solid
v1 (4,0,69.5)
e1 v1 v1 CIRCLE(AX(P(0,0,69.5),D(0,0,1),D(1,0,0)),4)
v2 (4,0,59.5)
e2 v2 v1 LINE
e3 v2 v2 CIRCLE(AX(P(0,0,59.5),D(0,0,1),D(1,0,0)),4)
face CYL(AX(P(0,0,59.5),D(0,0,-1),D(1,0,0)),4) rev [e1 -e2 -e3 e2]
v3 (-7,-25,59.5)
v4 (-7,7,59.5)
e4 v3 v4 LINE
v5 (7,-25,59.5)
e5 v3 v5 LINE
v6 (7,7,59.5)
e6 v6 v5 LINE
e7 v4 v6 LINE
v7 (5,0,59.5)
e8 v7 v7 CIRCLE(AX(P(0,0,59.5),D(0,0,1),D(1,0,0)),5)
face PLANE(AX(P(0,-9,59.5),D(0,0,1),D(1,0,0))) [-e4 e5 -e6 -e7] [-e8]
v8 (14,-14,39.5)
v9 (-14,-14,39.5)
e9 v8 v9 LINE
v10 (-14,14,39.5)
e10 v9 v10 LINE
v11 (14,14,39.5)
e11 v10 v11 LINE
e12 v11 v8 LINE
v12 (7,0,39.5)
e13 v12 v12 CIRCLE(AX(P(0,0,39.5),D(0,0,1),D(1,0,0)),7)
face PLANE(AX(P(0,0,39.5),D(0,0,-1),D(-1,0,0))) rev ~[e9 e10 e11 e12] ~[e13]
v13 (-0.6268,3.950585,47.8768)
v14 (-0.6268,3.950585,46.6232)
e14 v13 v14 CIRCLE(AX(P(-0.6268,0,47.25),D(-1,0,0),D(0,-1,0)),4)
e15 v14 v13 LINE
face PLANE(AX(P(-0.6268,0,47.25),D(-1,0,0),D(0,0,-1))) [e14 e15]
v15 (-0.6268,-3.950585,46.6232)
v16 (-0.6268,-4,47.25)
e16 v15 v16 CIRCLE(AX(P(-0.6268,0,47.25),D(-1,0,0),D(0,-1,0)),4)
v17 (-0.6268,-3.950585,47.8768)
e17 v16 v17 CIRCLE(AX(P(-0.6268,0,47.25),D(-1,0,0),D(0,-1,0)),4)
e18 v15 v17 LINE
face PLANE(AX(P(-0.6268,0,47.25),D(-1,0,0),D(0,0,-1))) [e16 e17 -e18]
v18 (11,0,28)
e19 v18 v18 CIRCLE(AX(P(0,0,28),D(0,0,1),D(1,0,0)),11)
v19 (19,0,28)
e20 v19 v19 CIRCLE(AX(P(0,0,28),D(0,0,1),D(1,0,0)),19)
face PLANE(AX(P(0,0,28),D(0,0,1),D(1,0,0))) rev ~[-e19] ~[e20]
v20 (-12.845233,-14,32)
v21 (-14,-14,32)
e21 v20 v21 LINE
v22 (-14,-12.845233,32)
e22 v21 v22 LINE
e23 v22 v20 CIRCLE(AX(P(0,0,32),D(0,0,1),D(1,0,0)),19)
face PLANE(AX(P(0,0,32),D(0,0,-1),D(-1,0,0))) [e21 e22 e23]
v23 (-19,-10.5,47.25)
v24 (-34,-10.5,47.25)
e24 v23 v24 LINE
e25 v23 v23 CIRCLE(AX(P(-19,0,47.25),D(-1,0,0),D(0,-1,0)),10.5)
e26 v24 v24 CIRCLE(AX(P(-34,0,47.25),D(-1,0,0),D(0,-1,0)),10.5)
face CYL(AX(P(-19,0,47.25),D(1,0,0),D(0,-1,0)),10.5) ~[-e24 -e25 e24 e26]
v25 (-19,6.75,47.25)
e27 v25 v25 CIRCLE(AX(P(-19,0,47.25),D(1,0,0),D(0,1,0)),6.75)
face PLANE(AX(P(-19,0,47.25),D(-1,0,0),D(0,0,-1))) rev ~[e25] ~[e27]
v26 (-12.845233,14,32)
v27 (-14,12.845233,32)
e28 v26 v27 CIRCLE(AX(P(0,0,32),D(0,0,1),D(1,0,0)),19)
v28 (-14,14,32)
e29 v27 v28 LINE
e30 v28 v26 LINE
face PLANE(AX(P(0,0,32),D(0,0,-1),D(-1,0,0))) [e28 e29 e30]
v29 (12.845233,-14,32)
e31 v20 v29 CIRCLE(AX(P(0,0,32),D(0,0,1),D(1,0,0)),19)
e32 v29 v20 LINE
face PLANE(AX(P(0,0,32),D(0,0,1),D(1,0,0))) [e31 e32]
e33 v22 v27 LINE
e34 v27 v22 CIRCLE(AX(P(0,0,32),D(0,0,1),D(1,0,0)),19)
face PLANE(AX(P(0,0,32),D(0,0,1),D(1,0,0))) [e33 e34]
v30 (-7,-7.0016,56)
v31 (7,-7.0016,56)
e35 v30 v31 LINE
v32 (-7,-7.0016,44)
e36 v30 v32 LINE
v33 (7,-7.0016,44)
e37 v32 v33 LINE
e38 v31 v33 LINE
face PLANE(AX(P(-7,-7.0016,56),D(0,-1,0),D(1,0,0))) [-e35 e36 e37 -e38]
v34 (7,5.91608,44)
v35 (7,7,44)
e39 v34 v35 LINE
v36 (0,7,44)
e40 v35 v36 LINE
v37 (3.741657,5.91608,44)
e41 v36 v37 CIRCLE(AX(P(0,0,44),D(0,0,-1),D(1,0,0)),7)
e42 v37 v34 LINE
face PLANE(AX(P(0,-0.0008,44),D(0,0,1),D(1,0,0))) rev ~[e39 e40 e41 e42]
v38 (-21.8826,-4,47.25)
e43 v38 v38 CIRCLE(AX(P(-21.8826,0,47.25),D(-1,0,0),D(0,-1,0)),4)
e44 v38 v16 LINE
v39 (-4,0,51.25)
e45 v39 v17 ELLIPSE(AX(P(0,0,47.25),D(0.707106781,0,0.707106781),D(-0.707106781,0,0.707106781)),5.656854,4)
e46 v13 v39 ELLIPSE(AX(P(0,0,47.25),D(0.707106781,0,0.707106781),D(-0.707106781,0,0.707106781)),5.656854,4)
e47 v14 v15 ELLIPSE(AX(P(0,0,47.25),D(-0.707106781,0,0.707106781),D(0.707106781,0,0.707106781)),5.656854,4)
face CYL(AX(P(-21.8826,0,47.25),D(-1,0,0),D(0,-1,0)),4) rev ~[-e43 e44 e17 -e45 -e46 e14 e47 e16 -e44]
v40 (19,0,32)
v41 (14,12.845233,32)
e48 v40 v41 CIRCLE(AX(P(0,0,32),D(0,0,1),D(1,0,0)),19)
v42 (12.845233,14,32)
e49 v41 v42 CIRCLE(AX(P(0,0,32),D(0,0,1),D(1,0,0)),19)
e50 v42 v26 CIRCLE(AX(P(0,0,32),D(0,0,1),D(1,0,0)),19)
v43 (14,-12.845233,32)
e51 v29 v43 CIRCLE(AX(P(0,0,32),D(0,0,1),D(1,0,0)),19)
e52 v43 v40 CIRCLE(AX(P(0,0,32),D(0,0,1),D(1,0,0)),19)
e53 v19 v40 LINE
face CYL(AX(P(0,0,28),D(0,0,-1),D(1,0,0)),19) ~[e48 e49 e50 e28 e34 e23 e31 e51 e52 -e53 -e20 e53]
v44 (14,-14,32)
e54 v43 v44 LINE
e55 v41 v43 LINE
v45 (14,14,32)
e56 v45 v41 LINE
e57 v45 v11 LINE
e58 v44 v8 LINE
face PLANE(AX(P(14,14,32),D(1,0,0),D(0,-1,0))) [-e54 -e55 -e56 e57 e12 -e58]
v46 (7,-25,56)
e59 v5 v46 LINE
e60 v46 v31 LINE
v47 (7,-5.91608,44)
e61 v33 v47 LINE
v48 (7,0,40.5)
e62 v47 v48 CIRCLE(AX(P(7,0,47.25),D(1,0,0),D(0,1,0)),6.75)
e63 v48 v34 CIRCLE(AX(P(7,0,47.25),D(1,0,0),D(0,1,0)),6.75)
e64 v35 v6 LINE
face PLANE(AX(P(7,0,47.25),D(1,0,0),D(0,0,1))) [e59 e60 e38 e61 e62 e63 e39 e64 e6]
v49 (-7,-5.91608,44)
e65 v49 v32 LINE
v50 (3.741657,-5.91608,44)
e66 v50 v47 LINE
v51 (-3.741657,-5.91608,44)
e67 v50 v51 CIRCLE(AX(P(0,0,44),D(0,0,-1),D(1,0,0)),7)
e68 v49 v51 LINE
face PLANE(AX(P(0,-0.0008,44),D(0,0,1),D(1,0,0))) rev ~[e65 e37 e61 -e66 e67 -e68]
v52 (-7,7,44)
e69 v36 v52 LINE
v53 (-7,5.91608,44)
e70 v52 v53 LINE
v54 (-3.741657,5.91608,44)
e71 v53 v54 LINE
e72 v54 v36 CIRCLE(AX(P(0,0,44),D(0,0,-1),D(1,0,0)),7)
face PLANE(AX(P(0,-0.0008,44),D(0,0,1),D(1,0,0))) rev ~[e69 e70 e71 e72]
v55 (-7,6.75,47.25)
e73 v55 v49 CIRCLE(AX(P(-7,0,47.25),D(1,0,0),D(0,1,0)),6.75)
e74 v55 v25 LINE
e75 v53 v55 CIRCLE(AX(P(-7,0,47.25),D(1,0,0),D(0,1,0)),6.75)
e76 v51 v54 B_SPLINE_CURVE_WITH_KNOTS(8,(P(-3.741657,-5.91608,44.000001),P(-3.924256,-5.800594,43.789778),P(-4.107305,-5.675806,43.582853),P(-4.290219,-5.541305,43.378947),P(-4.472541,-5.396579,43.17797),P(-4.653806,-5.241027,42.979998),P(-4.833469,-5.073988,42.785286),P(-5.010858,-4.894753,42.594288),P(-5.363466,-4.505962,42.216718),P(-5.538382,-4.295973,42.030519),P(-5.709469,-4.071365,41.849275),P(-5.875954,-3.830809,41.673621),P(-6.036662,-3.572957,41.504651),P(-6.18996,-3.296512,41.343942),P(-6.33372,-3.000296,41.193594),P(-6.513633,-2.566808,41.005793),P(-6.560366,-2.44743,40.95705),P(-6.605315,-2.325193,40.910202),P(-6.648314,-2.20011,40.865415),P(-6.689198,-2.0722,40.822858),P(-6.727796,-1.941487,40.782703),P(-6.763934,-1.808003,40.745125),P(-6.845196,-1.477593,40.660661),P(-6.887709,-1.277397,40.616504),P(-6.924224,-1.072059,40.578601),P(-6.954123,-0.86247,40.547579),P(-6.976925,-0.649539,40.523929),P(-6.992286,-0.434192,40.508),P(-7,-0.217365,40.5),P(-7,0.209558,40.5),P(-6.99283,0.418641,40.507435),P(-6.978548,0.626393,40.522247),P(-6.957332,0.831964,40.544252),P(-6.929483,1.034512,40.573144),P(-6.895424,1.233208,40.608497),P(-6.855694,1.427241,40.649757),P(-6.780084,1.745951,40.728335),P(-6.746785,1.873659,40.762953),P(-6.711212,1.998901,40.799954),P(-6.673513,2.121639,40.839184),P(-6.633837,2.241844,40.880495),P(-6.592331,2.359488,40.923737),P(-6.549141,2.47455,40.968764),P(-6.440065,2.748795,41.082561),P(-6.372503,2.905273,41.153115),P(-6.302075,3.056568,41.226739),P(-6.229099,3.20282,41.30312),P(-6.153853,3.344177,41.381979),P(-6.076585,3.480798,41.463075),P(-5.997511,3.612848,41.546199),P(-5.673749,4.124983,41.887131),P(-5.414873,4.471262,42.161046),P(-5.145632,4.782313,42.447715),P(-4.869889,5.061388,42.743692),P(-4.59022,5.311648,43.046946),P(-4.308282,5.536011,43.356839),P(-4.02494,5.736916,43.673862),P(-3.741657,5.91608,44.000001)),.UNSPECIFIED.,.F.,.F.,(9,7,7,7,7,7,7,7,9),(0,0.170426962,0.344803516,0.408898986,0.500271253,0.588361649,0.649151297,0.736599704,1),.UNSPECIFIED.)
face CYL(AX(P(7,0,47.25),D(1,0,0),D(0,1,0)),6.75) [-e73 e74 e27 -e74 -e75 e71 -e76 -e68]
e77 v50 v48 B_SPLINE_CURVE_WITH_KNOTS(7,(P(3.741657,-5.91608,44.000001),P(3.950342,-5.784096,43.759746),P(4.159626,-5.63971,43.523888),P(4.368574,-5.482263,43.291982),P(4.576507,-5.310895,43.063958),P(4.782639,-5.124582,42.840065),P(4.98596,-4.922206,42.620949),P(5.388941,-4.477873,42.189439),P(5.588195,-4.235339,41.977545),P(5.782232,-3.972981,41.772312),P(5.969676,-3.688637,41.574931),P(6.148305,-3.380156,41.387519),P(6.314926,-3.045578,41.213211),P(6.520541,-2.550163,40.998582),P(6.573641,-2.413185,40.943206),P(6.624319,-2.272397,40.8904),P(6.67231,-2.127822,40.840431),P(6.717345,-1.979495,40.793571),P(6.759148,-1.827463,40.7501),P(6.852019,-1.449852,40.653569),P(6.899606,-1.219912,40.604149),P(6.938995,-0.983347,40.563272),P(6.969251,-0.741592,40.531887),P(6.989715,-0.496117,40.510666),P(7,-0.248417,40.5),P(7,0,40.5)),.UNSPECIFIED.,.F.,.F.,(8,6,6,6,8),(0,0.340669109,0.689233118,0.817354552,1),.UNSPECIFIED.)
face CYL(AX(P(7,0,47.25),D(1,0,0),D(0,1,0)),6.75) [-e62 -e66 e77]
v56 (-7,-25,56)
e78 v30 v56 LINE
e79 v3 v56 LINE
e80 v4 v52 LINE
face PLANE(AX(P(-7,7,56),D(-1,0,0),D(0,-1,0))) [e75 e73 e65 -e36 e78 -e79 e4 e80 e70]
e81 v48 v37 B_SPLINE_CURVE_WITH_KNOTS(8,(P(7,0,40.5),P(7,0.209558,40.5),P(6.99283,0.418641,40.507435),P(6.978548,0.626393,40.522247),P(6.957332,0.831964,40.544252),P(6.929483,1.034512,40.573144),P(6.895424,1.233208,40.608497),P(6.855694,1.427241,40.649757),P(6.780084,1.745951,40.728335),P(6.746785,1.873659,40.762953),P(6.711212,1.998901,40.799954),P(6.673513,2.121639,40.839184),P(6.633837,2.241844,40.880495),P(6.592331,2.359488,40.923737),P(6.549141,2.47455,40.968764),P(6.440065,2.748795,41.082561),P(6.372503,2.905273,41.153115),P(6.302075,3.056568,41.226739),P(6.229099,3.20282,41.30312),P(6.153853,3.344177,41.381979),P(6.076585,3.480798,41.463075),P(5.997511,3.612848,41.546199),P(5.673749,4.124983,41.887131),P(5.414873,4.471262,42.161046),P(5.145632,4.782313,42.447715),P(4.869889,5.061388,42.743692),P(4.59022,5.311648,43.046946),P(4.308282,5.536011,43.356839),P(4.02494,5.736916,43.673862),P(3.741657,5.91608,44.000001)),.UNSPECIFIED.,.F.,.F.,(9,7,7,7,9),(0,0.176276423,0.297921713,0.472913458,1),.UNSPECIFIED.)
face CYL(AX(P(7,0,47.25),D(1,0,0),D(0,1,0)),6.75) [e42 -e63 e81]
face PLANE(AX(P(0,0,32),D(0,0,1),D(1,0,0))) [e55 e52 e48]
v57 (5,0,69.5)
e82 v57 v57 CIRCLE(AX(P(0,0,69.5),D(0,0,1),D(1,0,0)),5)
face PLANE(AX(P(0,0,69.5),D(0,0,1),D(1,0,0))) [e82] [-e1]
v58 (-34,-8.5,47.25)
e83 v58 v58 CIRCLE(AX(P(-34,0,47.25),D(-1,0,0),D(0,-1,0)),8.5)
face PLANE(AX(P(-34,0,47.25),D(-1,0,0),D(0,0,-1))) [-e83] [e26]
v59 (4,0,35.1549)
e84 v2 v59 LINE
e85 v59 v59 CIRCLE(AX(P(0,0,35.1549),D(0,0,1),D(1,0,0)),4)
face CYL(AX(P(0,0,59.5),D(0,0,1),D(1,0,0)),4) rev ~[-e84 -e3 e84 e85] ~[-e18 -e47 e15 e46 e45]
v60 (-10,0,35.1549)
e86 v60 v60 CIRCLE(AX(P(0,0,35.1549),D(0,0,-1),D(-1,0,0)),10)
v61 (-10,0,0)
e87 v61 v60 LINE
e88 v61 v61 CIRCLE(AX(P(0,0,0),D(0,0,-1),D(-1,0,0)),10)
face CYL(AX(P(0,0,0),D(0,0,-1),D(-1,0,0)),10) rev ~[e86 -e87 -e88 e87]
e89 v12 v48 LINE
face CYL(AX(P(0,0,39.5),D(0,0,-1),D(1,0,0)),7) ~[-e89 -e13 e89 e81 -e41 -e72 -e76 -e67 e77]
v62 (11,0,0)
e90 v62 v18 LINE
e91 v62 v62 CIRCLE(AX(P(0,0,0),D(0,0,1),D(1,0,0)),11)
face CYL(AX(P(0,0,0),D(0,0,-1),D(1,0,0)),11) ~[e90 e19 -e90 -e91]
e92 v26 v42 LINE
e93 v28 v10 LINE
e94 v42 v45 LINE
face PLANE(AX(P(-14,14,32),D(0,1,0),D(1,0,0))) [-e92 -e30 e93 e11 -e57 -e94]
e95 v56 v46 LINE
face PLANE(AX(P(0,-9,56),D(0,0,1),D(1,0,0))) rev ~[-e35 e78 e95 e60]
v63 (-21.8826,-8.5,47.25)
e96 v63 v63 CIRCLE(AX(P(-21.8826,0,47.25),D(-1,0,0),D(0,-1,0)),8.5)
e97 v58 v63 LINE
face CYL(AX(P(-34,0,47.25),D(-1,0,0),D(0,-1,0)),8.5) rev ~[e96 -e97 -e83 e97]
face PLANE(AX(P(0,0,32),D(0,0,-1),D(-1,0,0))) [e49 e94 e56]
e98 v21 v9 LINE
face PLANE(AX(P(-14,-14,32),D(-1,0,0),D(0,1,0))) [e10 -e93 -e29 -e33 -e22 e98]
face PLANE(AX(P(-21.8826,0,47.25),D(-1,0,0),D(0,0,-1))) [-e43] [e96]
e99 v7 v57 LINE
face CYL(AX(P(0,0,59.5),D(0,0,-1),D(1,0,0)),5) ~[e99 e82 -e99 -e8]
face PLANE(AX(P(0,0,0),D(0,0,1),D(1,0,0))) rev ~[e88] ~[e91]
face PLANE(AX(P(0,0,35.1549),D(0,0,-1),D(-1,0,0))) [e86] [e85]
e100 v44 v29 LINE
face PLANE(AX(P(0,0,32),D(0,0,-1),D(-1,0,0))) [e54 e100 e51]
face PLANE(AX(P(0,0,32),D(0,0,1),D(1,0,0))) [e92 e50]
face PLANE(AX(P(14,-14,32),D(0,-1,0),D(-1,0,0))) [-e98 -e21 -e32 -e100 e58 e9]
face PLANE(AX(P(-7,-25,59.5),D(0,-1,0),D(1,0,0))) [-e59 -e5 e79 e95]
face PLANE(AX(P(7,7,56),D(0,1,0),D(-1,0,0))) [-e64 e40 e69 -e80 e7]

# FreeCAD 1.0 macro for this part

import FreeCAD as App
import Part
import Sketcher


def add_polygon(sketch, points):
    """Adds a closed chain of lines whose ends are joined by coincident constraints."""
    first, n = sketch.GeometryCount, len(points)
    for a, b in zip(points, points[1:] + points[:1]):
        sketch.addGeometry(Part.LineSegment(App.Vector(*a, 0), App.Vector(*b, 0)), False)
    for i in range(n):
        sketch.addConstraint(Sketcher.Constraint("Coincident", first + i, 2, first + (i + 1) % n, 1))

doc = App.newDocument("Part")
body = doc.addObject("PartDesign::Body", "Body")

sketch1 = body.newObject("Sketcher::SketchObject", "Sketch")
sketch1.AttachmentSupport = (doc.getObject("XY_Plane"), [""])
sketch1.MapMode = "FlatFace"
sketch1.addGeometry(Part.Circle(App.Vector(0, 0, 0), App.Vector(0, 0, 1), 11), False)
sketch1.addConstraint([
    Sketcher.Constraint("Coincident", 0, 3, -1, 1),
    Sketcher.Constraint("Diameter", 0, 22.0),
])
pad1 = body.newObject("PartDesign::Pad", "Pad")
pad1.Profile = sketch1
pad1.Length = 28

sketch2 = body.newObject("Sketcher::SketchObject", "Sketch001")
sketch2.AttachmentSupport = (doc.getObject("XY_Plane"), [""])
sketch2.MapMode = "FlatFace"
sketch2.AttachmentOffset = App.Placement(App.Vector(0, 0, 28), App.Rotation())
sketch2.addGeometry(Part.Circle(App.Vector(0, 0, 0), App.Vector(0, 0, 1), 19), False)
sketch2.addConstraint([
    Sketcher.Constraint("Coincident", 0, 3, -1, 1),
    Sketcher.Constraint("Diameter", 0, 38.0),
])
pad2 = body.newObject("PartDesign::Pad", "Pad001")
pad2.Profile = sketch2
pad2.Length = 4

sketch3 = body.newObject("Sketcher::SketchObject", "Sketch002")
sketch3.AttachmentSupport = (doc.getObject("XY_Plane"), [""])
sketch3.MapMode = "FlatFace"
sketch3.AttachmentOffset = App.Placement(App.Vector(0, 0, 32), App.Rotation())
add_polygon(sketch3, [(14, -14), (14, 14), (-14, 14), (-14, -14)])
sketch3.addConstraint([
    Sketcher.Constraint("Vertical", 0),
    Sketcher.Constraint("Horizontal", 1),
    Sketcher.Constraint("Vertical", 2),
    Sketcher.Constraint("Horizontal", 3),
    Sketcher.Constraint("Symmetric", 0, 2, 2, 2, -1, 1),
    Sketcher.Constraint("Equal", 3, 0),
    Sketcher.Constraint("DistanceX", 1, 2, 1, 1, 28.0),
])
pad3 = body.newObject("PartDesign::Pad", "Pad002")
pad3.Profile = sketch3
pad3.Length = 7.5

sketch4 = body.newObject("Sketcher::SketchObject", "Sketch003")
sketch4.AttachmentSupport = (doc.getObject("XY_Plane"), [""])
sketch4.MapMode = "FlatFace"
sketch4.AttachmentOffset = App.Placement(App.Vector(0, 0, 39.5), App.Rotation())
sketch4.addGeometry(Part.Circle(App.Vector(0, 0, 0), App.Vector(0, 0, 1), 7), False)
sketch4.addConstraint([
    Sketcher.Constraint("Coincident", 0, 3, -1, 1),
    Sketcher.Constraint("Diameter", 0, 14.0),
])
pad4 = body.newObject("PartDesign::Pad", "Pad003")
pad4.Profile = sketch4
pad4.Length = 20

sketch5 = body.newObject("Sketcher::SketchObject", "Sketch004")
sketch5.AttachmentSupport = (doc.getObject("XY_Plane"), [""])
sketch5.MapMode = "FlatFace"
sketch5.AttachmentOffset = App.Placement(App.Vector(0, 0, 59.5), App.Rotation())
add_polygon(sketch5, [(-7, -25), (7, -25), (7, 7), (-7, 7)])
sketch5.addConstraint([
    Sketcher.Constraint("Horizontal", 0),
    Sketcher.Constraint("Vertical", 1),
    Sketcher.Constraint("Horizontal", 2),
    Sketcher.Constraint("Vertical", 3),
    Sketcher.Constraint("DistanceX", 0, 1, 0, 2, 14.0),
    Sketcher.Constraint("DistanceY", 1, 1, 1, 2, 32.0),
    Sketcher.Constraint("DistanceX", -1, 1, 0, 2, 7.0),
    Sketcher.Constraint("DistanceY", 0, 2, -1, 1, 25.0),
])
pad5 = body.newObject("PartDesign::Pad", "Pad004")
pad5.Profile = sketch5
pad5.Length = 3.5
pad5.Reversed = True

sketch6 = body.newObject("Sketcher::SketchObject", "Sketch005")
sketch6.AttachmentSupport = (doc.getObject("XY_Plane"), [""])
sketch6.MapMode = "FlatFace"
sketch6.AttachmentOffset = App.Placement(App.Vector(0, 0, 59.5), App.Rotation())
sketch6.addGeometry([
    Part.Circle(App.Vector(0, 0, 0), App.Vector(0, 0, 1), 5),
    Part.Circle(App.Vector(0, 0, 0), App.Vector(0, 0, 1), 4),
], False)
sketch6.addConstraint([
    Sketcher.Constraint("Coincident", 0, 3, -1, 1),
    Sketcher.Constraint("Coincident", 1, 3, -1, 1),
    Sketcher.Constraint("Diameter", 0, 10.0),
    Sketcher.Constraint("Diameter", 1, 8.0),
])
pad6 = body.newObject("PartDesign::Pad", "Pad005")
pad6.Profile = sketch6
pad6.Length = 10

sketch7 = body.newObject("Sketcher::SketchObject", "Sketch006")
sketch7.AttachmentSupport = (doc.getObject("XY_Plane"), [""])
sketch7.MapMode = "FlatFace"
sketch7.AttachmentOffset = App.Placement(App.Vector(0, 0, 56), App.Rotation())
add_polygon(sketch7, [(7, -7), (-7, -7), (-7, 7), (7, 7)])
sketch7.addConstraint([
    Sketcher.Constraint("Horizontal", 0),
    Sketcher.Constraint("Vertical", 1),
    Sketcher.Constraint("Horizontal", 2),
    Sketcher.Constraint("Vertical", 3),
    Sketcher.Constraint("DistanceX", 0, 2, 0, 1, 14.0),
    Sketcher.Constraint("DistanceX", 0, 2, -1, 1, 7.0),
    Sketcher.Constraint("DistanceY", -1, 1, 1, 2, 7.0),
    Sketcher.Constraint("DistanceY", 1, 1, 1, 2, 14.0016),
])
pad7 = body.newObject("PartDesign::Pad", "Pad006")
pad7.Profile = sketch7
pad7.Length = 12
pad7.Reversed = True

sketch8 = body.newObject("Sketcher::SketchObject", "Sketch007")
sketch8.AttachmentSupport = (doc.getObject("YZ_Plane"), [""])
sketch8.MapMode = "FlatFace"
sketch8.AttachmentOffset = App.Placement(App.Vector(0, 0, 7), App.Rotation())
sketch8.addGeometry(Part.Circle(App.Vector(0, 47, 0), App.Vector(0, 0, 1), 7), False)
sketch8.addConstraint([
    Sketcher.Constraint("PointOnObject", 0, 3, -2),
    Sketcher.Constraint("Diameter", 0, 13.5),
    Sketcher.Constraint("DistanceY", -1, 1, 0, 3, 47.25),
])
pad8 = body.newObject("PartDesign::Pad", "Pad007")
pad8.Profile = sketch8
pad8.Length = 26
pad8.Reversed = True

sketch9 = body.newObject("Sketcher::SketchObject", "Sketch008")
sketch9.AttachmentSupport = (doc.getObject("YZ_Plane"), [""])
sketch9.MapMode = "FlatFace"
sketch9.AttachmentOffset = App.Placement(App.Vector(0, 0, -19), App.Rotation())
sketch9.addGeometry(Part.Circle(App.Vector(0, 47, 0), App.Vector(0, 0, 1), 10), False)
sketch9.addConstraint([
    Sketcher.Constraint("PointOnObject", 0, 3, -2),
    Sketcher.Constraint("Diameter", 0, 21.0),
    Sketcher.Constraint("DistanceY", -1, 1, 0, 3, 47.25),
])
pad9 = body.newObject("PartDesign::Pad", "Pad008")
pad9.Profile = sketch9
pad9.Length = 15
pad9.Reversed = True

sketch10 = body.newObject("Sketcher::SketchObject", "Sketch009")
sketch10.AttachmentSupport = (doc.getObject("YZ_Plane"), [""])
sketch10.MapMode = "FlatFace"
sketch10.AttachmentOffset = App.Placement(App.Vector(0, 0, -34), App.Rotation())
sketch10.addGeometry(Part.Circle(App.Vector(0, 47, 0), App.Vector(0, 0, 1), 8), False)
sketch10.addConstraint([
    Sketcher.Constraint("PointOnObject", 0, 3, -2),
    Sketcher.Constraint("Diameter", 0, 17.0),
    Sketcher.Constraint("DistanceY", -1, 1, 0, 3, 47.25),
])
pocket1 = body.newObject("PartDesign::Pocket", "Pocket")
pocket1.Profile = sketch10
pocket1.Length = 12.1174
pocket1.Reversed = True

sketch11 = body.newObject("Sketcher::SketchObject", "Sketch010")
sketch11.AttachmentSupport = (doc.getObject("XY_Plane"), [""])
sketch11.MapMode = "FlatFace"
sketch11.addGeometry(Part.Circle(App.Vector(0, 0, 0), App.Vector(0, 0, 1), 10), False)
sketch11.addConstraint([
    Sketcher.Constraint("Coincident", 0, 3, -1, 1),
    Sketcher.Constraint("Diameter", 0, 20.0),
])
pocket2 = body.newObject("PartDesign::Pocket", "Pocket001")
pocket2.Profile = sketch11
pocket2.Length = 35.1549
pocket2.Reversed = True

sketch12 = body.newObject("Sketcher::SketchObject", "Sketch011")
sketch12.AttachmentSupport = (doc.getObject("XY_Plane"), [""])
sketch12.MapMode = "FlatFace"
sketch12.AttachmentOffset = App.Placement(App.Vector(0, 0, 59.5), App.Rotation())
sketch12.addGeometry(Part.Circle(App.Vector(0, 0, 0), App.Vector(0, 0, 1), 4), False)
sketch12.addConstraint([
    Sketcher.Constraint("Coincident", 0, 3, -1, 1),
    Sketcher.Constraint("Diameter", 0, 8.0),
])
pocket3 = body.newObject("PartDesign::Pocket", "Pocket002")
pocket3.Profile = sketch12
pocket3.Length = 106.077

sketch13 = body.newObject("Sketcher::SketchObject", "Sketch012")
sketch13.AttachmentSupport = (doc.getObject("YZ_Plane"), [""])
sketch13.MapMode = "FlatFace"
sketch13.AttachmentOffset = App.Placement(App.Vector(0, 0, -21.8826), App.Rotation())
sketch13.addGeometry(Part.Circle(App.Vector(0, 47.2, 0), App.Vector(0, 0, 1), 4), False)
sketch13.addConstraint([
    Sketcher.Constraint("PointOnObject", 0, 3, -2),
    Sketcher.Constraint("Diameter", 0, 8.0),
    Sketcher.Constraint("DistanceY", -1, 1, 0, 3, 47.25),
])
pocket4 = body.newObject("PartDesign::Pocket", "Pocket003")
pocket4.Profile = sketch13
pocket4.Length = 21.2558
pocket4.Reversed = True

doc.recompute()
